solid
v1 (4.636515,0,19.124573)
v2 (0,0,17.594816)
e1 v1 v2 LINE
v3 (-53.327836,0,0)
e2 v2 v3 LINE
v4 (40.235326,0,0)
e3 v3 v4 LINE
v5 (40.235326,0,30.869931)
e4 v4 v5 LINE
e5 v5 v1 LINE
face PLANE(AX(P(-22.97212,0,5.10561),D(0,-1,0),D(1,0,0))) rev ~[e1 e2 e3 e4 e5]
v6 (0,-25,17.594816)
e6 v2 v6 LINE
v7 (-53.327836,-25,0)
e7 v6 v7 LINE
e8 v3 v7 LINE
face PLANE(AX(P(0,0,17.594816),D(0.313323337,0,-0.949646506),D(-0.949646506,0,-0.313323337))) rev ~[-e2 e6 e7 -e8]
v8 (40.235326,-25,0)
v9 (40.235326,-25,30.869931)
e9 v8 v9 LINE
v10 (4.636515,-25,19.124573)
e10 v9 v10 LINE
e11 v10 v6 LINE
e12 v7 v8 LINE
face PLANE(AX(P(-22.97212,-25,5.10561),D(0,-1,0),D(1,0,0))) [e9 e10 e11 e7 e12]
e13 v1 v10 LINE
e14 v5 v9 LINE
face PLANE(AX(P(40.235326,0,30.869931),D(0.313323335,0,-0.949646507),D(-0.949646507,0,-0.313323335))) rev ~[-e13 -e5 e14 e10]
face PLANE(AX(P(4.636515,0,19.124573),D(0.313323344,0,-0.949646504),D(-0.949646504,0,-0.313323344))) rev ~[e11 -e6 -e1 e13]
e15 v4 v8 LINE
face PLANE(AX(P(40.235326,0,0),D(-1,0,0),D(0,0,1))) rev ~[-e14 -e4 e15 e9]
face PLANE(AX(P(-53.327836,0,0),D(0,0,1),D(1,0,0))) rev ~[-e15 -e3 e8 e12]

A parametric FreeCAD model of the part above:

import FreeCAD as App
import Part
import Sketcher

V = App.Vector
Q = App.Units.Quantity


def add_polygon(sketch, points):
    """Adds a closed chain of lines whose ends are joined by coincident constraints."""
    first, n = sketch.GeometryCount, len(points)
    for a, b in zip(points, points[1:] + points[:1]):
        sketch.addGeometry(Part.LineSegment(App.Vector(*a, 0), App.Vector(*b, 0)), False)
    for i in range(n):
        sketch.addConstraint(Sketcher.Constraint("Coincident", first + i, 2, first + (i + 1) % n, 1))

doc = App.newDocument("Part")
body = doc.addObject("PartDesign::Body", "Body")

sketch1 = body.newObject("Sketcher::SketchObject", "Sketch")
sketch1.AttachmentSupport = (doc.getObject("XZ_Plane"), [""])
sketch1.MapMode = "FlatFace"
add_polygon(sketch1, [(4.6, 19.1), (0, 17.6), (-53.3, 0), (40.2, 0), (40.2, 30.9)])
sketch1.addConstraint([
    Sketcher.Constraint("Horizontal", 2),
    Sketcher.Constraint("Vertical", 3),
    Sketcher.Constraint("PointOnObject", 0, 2, -2),
    Sketcher.Constraint("PointOnObject", 1, 2, -1),
    Sketcher.Constraint("Parallel", 0, 1),
    Sketcher.Constraint("Parallel", 1, 4),
    Sketcher.Constraint("DistanceY", 3, 1, 3, 2, Q("30.869931 mm")),
    Sketcher.Constraint("Distance", 0, Q("4.882359 mm")),
    Sketcher.Constraint("Distance", 1, Q("56.15546 mm")),
    Sketcher.Constraint("Distance", 4, Q("37.486381 mm")),
])
pad1 = body.newObject("PartDesign::Pad", "Pad")
pad1.Profile = sketch1
pad1.Length = 25

doc.recompute()
